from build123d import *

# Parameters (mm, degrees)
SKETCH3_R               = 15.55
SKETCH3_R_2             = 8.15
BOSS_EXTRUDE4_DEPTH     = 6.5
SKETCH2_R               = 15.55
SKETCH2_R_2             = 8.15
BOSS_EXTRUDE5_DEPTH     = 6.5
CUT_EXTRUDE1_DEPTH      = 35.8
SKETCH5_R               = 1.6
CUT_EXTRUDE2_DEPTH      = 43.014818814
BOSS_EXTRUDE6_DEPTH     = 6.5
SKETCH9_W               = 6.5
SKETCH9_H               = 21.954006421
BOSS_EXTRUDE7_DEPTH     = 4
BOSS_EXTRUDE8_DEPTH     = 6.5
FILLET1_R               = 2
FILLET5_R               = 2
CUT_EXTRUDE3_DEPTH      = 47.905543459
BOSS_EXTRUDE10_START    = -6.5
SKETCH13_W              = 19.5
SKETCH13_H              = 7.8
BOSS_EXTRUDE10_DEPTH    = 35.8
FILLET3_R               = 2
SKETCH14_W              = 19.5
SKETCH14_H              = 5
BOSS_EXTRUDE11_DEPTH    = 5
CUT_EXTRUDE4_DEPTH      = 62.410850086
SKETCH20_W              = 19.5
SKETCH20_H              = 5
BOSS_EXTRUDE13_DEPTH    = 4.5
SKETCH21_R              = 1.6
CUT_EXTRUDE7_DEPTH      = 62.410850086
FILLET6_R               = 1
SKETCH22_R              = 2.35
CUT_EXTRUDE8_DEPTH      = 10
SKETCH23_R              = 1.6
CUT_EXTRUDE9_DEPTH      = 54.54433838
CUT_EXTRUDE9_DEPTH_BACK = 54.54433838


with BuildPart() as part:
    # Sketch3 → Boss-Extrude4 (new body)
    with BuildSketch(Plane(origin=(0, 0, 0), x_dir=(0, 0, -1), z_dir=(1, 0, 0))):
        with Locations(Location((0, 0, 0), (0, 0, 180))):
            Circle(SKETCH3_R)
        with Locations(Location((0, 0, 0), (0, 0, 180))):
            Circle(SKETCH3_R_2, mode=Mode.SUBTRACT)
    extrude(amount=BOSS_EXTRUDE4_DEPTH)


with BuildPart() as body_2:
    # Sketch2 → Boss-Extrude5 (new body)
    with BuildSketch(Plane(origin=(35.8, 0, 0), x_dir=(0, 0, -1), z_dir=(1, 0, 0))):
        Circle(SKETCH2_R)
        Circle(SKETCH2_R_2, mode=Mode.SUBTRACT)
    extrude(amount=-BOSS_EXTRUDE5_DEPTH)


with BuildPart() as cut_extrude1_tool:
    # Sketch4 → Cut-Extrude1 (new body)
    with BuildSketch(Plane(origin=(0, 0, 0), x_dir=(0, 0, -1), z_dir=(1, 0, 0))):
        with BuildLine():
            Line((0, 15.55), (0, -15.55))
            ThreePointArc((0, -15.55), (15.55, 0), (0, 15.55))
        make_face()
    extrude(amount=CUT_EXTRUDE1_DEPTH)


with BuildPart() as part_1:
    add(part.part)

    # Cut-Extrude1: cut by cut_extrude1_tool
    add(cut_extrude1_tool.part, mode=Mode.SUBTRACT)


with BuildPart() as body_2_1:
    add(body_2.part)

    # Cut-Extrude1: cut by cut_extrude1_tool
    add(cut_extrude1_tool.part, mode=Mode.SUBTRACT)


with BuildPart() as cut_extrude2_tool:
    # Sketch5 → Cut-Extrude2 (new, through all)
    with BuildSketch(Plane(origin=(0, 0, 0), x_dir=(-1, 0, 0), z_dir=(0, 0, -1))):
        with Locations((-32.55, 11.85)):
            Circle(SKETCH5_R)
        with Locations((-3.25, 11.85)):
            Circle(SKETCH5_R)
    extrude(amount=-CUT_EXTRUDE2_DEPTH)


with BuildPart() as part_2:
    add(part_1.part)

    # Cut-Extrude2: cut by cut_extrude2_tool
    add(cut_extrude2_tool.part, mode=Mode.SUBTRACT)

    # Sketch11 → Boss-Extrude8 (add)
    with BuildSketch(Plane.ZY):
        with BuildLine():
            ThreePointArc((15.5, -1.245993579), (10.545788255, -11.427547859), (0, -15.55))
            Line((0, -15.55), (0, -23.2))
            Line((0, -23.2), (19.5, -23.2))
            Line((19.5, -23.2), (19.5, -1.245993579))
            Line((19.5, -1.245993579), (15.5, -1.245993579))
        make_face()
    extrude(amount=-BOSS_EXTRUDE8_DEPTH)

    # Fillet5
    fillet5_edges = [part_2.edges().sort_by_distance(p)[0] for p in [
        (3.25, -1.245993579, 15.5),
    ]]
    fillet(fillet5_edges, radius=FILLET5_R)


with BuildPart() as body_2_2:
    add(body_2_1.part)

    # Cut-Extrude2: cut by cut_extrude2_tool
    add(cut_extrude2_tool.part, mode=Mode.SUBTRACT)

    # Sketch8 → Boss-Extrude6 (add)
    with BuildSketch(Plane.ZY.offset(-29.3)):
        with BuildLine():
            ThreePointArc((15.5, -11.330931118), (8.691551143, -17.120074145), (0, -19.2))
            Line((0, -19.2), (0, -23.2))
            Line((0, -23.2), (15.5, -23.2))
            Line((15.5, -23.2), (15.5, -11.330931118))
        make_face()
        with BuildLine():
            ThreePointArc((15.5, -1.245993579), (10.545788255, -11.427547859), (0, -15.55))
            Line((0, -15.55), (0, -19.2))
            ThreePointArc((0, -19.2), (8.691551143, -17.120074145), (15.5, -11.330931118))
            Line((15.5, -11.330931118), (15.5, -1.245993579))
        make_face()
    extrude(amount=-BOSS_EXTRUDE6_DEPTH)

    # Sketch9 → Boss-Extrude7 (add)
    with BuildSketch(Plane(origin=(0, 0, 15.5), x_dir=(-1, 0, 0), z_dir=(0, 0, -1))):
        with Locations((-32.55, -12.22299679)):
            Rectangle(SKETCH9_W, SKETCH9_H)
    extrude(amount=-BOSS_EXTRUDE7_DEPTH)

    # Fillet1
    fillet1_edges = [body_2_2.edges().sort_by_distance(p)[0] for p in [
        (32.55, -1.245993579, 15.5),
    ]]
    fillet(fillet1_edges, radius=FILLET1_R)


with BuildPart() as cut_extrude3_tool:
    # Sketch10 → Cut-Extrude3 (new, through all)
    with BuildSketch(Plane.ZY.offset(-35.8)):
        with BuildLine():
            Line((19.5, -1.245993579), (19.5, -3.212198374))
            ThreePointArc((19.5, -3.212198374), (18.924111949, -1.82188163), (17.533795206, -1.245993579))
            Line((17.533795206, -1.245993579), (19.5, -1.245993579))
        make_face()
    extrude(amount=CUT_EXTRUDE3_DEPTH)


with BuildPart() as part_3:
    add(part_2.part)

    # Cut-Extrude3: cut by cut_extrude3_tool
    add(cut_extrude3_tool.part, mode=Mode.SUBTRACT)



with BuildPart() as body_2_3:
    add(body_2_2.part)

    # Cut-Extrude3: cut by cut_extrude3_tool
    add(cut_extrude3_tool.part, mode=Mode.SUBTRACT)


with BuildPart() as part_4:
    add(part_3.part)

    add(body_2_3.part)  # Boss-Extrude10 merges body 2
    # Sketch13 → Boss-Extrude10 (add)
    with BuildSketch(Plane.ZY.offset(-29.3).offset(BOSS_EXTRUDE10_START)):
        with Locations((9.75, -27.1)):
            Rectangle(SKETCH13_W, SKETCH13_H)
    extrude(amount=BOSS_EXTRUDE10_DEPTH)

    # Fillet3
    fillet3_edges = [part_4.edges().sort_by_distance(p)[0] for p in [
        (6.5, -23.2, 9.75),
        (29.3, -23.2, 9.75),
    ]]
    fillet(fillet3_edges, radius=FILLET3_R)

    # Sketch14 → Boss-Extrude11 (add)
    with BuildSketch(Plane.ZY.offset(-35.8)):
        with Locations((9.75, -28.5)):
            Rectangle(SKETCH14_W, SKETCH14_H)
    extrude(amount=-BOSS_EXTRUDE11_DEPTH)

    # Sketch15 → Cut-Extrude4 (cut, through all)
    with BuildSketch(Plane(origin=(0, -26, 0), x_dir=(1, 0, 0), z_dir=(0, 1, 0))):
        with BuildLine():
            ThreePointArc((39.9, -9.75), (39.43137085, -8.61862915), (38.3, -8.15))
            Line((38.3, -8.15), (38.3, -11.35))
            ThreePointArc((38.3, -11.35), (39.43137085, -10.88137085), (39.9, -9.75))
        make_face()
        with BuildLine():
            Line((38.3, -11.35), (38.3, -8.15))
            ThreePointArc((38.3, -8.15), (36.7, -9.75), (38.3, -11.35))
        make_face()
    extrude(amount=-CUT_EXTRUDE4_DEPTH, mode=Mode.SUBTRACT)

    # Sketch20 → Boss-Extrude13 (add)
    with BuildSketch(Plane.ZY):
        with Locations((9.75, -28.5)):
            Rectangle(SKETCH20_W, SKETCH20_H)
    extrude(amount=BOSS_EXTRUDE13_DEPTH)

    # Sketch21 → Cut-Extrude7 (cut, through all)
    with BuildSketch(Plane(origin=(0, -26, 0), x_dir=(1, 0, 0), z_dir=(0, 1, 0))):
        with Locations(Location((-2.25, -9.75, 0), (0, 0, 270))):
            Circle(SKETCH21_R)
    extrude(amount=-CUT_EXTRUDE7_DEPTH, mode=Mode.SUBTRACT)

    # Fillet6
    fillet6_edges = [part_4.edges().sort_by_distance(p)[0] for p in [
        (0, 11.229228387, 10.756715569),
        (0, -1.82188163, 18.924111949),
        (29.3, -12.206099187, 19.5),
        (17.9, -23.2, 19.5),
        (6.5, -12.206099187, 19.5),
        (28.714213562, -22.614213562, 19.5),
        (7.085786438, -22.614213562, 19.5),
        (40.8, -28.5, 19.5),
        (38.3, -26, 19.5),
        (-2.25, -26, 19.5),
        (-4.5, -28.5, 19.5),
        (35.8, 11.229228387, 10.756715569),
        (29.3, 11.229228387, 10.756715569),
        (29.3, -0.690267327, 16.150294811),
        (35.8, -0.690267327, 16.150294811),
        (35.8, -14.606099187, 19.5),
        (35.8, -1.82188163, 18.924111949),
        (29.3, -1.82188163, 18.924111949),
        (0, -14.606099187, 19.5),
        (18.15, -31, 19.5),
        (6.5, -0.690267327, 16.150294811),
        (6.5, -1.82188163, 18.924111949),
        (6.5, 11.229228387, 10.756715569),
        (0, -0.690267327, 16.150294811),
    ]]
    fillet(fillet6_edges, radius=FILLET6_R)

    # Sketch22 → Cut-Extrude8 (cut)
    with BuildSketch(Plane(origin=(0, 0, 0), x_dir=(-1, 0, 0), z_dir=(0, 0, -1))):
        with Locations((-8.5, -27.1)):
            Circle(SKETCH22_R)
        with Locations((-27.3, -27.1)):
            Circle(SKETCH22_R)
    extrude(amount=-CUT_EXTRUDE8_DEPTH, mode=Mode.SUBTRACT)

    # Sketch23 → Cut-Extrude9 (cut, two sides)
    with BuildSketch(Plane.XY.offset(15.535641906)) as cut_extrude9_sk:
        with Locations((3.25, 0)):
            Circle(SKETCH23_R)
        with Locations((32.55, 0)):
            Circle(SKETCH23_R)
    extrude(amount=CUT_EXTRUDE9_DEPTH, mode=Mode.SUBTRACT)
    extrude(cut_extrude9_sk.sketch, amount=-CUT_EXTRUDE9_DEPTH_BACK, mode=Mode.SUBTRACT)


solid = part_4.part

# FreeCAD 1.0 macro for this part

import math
import FreeCAD as App
import Part
import Sketcher

V = App.Vector
Q = App.Units.Quantity


def edges_at(feature, points):
    """Names of the edges that pass closest to the given points."""
    edges = feature.Shape.Edges
    near = lambda p: min(range(len(edges)), key=lambda i: edges[i].distToShape(Part.Vertex(*p))[0])
    return sorted({f"Edge{near(p) + 1}" for p in points})


def add_polygon(sketch, points):
    """Adds a closed chain of lines whose ends are joined by coincident constraints."""
    first, n = sketch.GeometryCount, len(points)
    for a, b in zip(points, points[1:] + points[:1]):
        sketch.addGeometry(Part.LineSegment(App.Vector(*a, 0), App.Vector(*b, 0)), False)
    for i in range(n):
        sketch.addConstraint(Sketcher.Constraint("Coincident", first + i, 2, first + (i + 1) % n, 1))

doc = App.newDocument("Part")
body = doc.addObject("PartDesign::Body", "Body")

sketch1 = body.newObject("Sketcher::SketchObject", "Sketch")
sketch1.AttachmentSupport = (doc.getObject("YZ_Plane"), [""])
sketch1.MapMode = "FlatFace"
sketch1.addGeometry(Part.Circle(V(0, 0, 0), V(0, 0, 1), 15.55), False)
sketch1.addGeometry(Part.Circle(V(0, 0, 0), V(0, 0, 1), 8.15), False)
sketch1.addConstraint(Sketcher.Constraint("Coincident", 0, 3, -1, 1))
sketch1.addConstraint(Sketcher.Constraint("Coincident", 1, 3, -1, 1))
sketch1.addConstraint(Sketcher.Constraint("Diameter", 0, Q("31.1 mm")))
sketch1.addConstraint(Sketcher.Constraint("Diameter", 1, Q("16.3 mm")))
pad1 = body.newObject("PartDesign::Pad", "Pad")
pad1.Profile = sketch1
pad1.Length = 6.5
body2 = doc.addObject("PartDesign::Body", "Body001")

sketch2 = body2.newObject("Sketcher::SketchObject", "Sketch001")
sketch2.AttachmentSupport = (doc.getObject("YZ_Plane001"), [""])
sketch2.MapMode = "FlatFace"
sketch2.AttachmentOffset = App.Placement(V(0, 0, 35.8), App.Rotation())
sketch2.addGeometry(Part.Circle(V(0, 0, 0), V(0, 0, 1), 15.55), False)
sketch2.addGeometry(Part.Circle(V(0, 0, 0), V(0, 0, 1), 8.15), False)
sketch2.addConstraint(Sketcher.Constraint("Coincident", 0, 3, -1, 1))
sketch2.addConstraint(Sketcher.Constraint("Coincident", 1, 3, -1, 1))
sketch2.addConstraint(Sketcher.Constraint("Diameter", 0, Q("31.1 mm")))
sketch2.addConstraint(Sketcher.Constraint("Diameter", 1, Q("16.3 mm")))
pad2 = body2.newObject("PartDesign::Pad", "Pad001")
pad2.Profile = sketch2
pad2.Length = 6.5
pad2.Reversed = True
body3 = doc.addObject("PartDesign::Body", "Body002")

sketch3 = body3.newObject("Sketcher::SketchObject", "Sketch002")
sketch3.AttachmentSupport = (doc.getObject("YZ_Plane002"), [""])
sketch3.MapMode = "FlatFace"
sketch3.addGeometry(Part.LineSegment(V(15.55, 0, 0), V(-15.55, 0, 0)), False)
sketch3.addGeometry(Part.ArcOfCircle(Part.Circle(V(0, 0, 0), V(0, 0, 1), 15.55), math.radians(180), math.radians(360)), False)
sketch3.addConstraint(Sketcher.Constraint("Coincident", 0, 1, 1, 2))
sketch3.addConstraint(Sketcher.Constraint("Coincident", 1, 1, 0, 2))
sketch3.addConstraint(Sketcher.Constraint("Horizontal", 0))
sketch3.addConstraint(Sketcher.Constraint("Coincident", 1, 3, -1, 1))
sketch3.addConstraint(Sketcher.Constraint("PointOnObject", 0, 1, -1))
sketch3.addConstraint(Sketcher.Constraint("Radius", 1, Q("15.55 mm")))
pad3 = body3.newObject("PartDesign::Pad", "Pad002")
pad3.Profile = sketch3
pad3.Length = 35.8
doc.recompute()

body4 = doc.addObject("PartDesign::Body", "Body003")
body4.BaseFeature = body3
boolean = body.newObject("PartDesign::Boolean", "Boolean")
boolean.Type = "Cut"
boolean.addObjects([body4])
doc.recompute()

boolean2 = body2.newObject("PartDesign::Boolean", "Boolean001")
boolean2.Type = "Cut"
boolean2.addObjects([body3])
body5 = doc.addObject("PartDesign::Body", "Body004")
body5.AllowCompound = True

sketch4 = body5.newObject("Sketcher::SketchObject", "Sketch003")
sketch4.AttachmentSupport = (doc.getObject("XY_Plane004"), [""])
sketch4.MapMode = "FlatFace"
sketch4.addGeometry(Part.Circle(V(32.55, 11.85, 0), V(0, 0, 1), 1.6), False)
sketch4.addGeometry(Part.Circle(V(3.25, 11.85, 0), V(0, 0, 1), 1.6), False)
sketch4.addConstraint(Sketcher.Constraint("Equal", 0, 1))
sketch4.addConstraint(Sketcher.Constraint("Horizontal", 0, 3, 1, 3))
sketch4.addConstraint(Sketcher.Constraint("Diameter", 0, Q("3.2 mm")))
sketch4.addConstraint(Sketcher.Constraint("DistanceX", 1, 3, 0, 3, Q("29.3 mm")))
sketch4.addConstraint(Sketcher.Constraint("DistanceX", -1, 1, 0, 3, Q("32.55 mm")))
sketch4.addConstraint(Sketcher.Constraint("DistanceY", -1, 1, 0, 3, Q("11.85 mm")))
pad4 = body5.newObject("PartDesign::Pad", "Pad003")
pad4.Profile = sketch4
pad4.Length = 43.014819
doc.recompute()

body6 = doc.addObject("PartDesign::Body", "Body005")
body6.BaseFeature = body5
boolean3 = body.newObject("PartDesign::Boolean", "Boolean002")
boolean3.Type = "Cut"
boolean3.addObjects([body6])
doc.recompute()

sketch5 = body.newObject("Sketcher::SketchObject", "Sketch004")
sketch5.AttachmentSupport = (doc.getObject("YZ_Plane"), [""])
sketch5.MapMode = "FlatFace"
sketch5.addGeometry(Part.ArcOfCircle(Part.Circle(V(0, 0, 0), V(0, 0, 1), 15.55), math.radians(94.595935), math.radians(180)), False)
sketch5.addGeometry(Part.LineSegment(V(-15.55, 0, 0), V(-23.2, 0, 0)), False)
sketch5.addGeometry(Part.LineSegment(V(-23.2, 0, 0), V(-23.2, 19.5, 0)), False)
sketch5.addGeometry(Part.LineSegment(V(-23.2, 19.5, 0), V(-1.245994, 19.5, 0)), False)
sketch5.addGeometry(Part.LineSegment(V(-1.245994, 19.5, 0), V(-1.245994, 15.5, 0)), False)
sketch5.addConstraint(Sketcher.Constraint("Coincident", 0, 2, 1, 1))
sketch5.addConstraint(Sketcher.Constraint("Coincident", 1, 2, 2, 1))
sketch5.addConstraint(Sketcher.Constraint("Coincident", 2, 2, 3, 1))
sketch5.addConstraint(Sketcher.Constraint("Coincident", 3, 2, 4, 1))
sketch5.addConstraint(Sketcher.Constraint("Coincident", 4, 2, 0, 1))
sketch5.addConstraint(Sketcher.Constraint("Horizontal", 1))
sketch5.addConstraint(Sketcher.Constraint("Vertical", 2))
sketch5.addConstraint(Sketcher.Constraint("Horizontal", 3))
sketch5.addConstraint(Sketcher.Constraint("Vertical", 4))
sketch5.addConstraint(Sketcher.Constraint("Coincident", 0, 3, -1, 1))
sketch5.addConstraint(Sketcher.Constraint("PointOnObject", 0, 2, -1))
sketch5.addConstraint(Sketcher.Constraint("DistanceY", 4, 2, 4, 1, Q("4 mm")))
sketch5.addConstraint(Sketcher.Constraint("Radius", 0, Q("15.55 mm")))
sketch5.addConstraint(Sketcher.Constraint("DistanceY", 2, 1, 2, 2, Q("19.5 mm")))
sketch5.addConstraint(Sketcher.Constraint("DistanceX", 1, 2, 1, 1, Q("7.65 mm")))
pad5 = body.newObject("PartDesign::Pad", "Pad004")
pad5.Profile = sketch5
pad5.Length = 6.5
doc.recompute()

fillet = body.newObject("PartDesign::Fillet", "Fillet")
fillet.Base = (pad5, edges_at(pad5, [(3.25, -1.246, 15.5)]))
fillet.Radius = 2
doc.recompute()

boolean4 = body2.newObject("PartDesign::Boolean", "Boolean003")
boolean4.Type = "Cut"
boolean4.addObjects([body5])

sketch6 = body2.newObject("Sketcher::SketchObject", "Sketch005")
sketch6.AttachmentSupport = (doc.getObject("YZ_Plane001"), [""])
sketch6.MapMode = "FlatFace"
sketch6.AttachmentOffset = App.Placement(V(0, 0, 29.3), App.Rotation())
sketch6.addGeometry(Part.LineSegment(V(-23.2, 0, 0), V(-23.2, 15.5, 0)), False)
sketch6.addGeometry(Part.LineSegment(V(-23.2, 15.5, 0), V(-1.245994, 15.5, 0)), False)
sketch6.addGeometry(Part.ArcOfCircle(Part.Circle(V(0, 0, 0), V(0, 0, 1), 15.55), math.radians(94.595935), math.radians(180)), False)
sketch6.addGeometry(Part.LineSegment(V(-15.55, 0, 0), V(-23.2, 0, 0)), False)
sketch6.addConstraint(Sketcher.Constraint("Coincident", 0, 2, 1, 1))
sketch6.addConstraint(Sketcher.Constraint("Coincident", 1, 2, 2, 1))
sketch6.addConstraint(Sketcher.Constraint("Coincident", 2, 2, 3, 1))
sketch6.addConstraint(Sketcher.Constraint("Coincident", 3, 2, 0, 1))
sketch6.addConstraint(Sketcher.Constraint("Vertical", 0))
sketch6.addConstraint(Sketcher.Constraint("Horizontal", 1))
sketch6.addConstraint(Sketcher.Constraint("Horizontal", 3))
sketch6.addConstraint(Sketcher.Constraint("Coincident", 2, 3, -1, 1))
sketch6.addConstraint(Sketcher.Constraint("PointOnObject", 2, 2, -1))
sketch6.addConstraint(Sketcher.Constraint("Radius", 2, Q("15.55 mm")))
sketch6.addConstraint(Sketcher.Constraint("DistanceY", 0, 1, 0, 2, Q("15.5 mm")))
sketch6.addConstraint(Sketcher.Constraint("DistanceX", 3, 2, 3, 1, Q("7.65 mm")))
pad6 = body2.newObject("PartDesign::Pad", "Pad005")
pad6.Profile = sketch6
pad6.Length = 6.5

sketch7 = body2.newObject("Sketcher::SketchObject", "Sketch006")
sketch7.AttachmentSupport = (doc.getObject("XY_Plane001"), [""])
sketch7.MapMode = "FlatFace"
sketch7.AttachmentOffset = App.Placement(V(0, 0, 15.5), App.Rotation())
add_polygon(sketch7, [(35.8, -1.245994), (35.8, -23.2), (29.3, -23.2), (29.3, -1.245994)])
sketch7.addConstraint(Sketcher.Constraint("Vertical", 0))
sketch7.addConstraint(Sketcher.Constraint("Horizontal", 1))
sketch7.addConstraint(Sketcher.Constraint("Vertical", 2))
sketch7.addConstraint(Sketcher.Constraint("Horizontal", 3))
sketch7.addConstraint(Sketcher.Constraint("DistanceX", 1, 2, 1, 1, Q("6.5 mm")))
sketch7.addConstraint(Sketcher.Constraint("DistanceX", -1, 1, 0, 2, Q("35.8 mm")))
sketch7.addConstraint(Sketcher.Constraint("DistanceY", 0, 2, -1, 1, Q("23.2 mm")))
sketch7.addConstraint(Sketcher.Constraint("DistanceY", 0, 2, 0, 1, Q("21.954006 mm")))
pad7 = body2.newObject("PartDesign::Pad", "Pad006")
pad7.Profile = sketch7
pad7.Length = 4
doc.recompute()

fillet2 = body2.newObject("PartDesign::Fillet", "Fillet001")
fillet2.Base = (pad7, edges_at(pad7, [(32.55, -1.246, 15.5)]))
fillet2.Radius = 2
body7 = doc.addObject("PartDesign::Body", "Body006")

sketch8 = body7.newObject("Sketcher::SketchObject", "Sketch007")
sketch8.AttachmentSupport = (doc.getObject("YZ_Plane006"), [""])
sketch8.MapMode = "FlatFace"
sketch8.AttachmentOffset = App.Placement(V(0, 0, 35.8), App.Rotation())
sketch8.addGeometry(Part.LineSegment(V(-3.212198, 19.5, 0), V(-1.245994, 19.5, 0)), False)
sketch8.addGeometry(Part.LineSegment(V(-1.245994, 19.5, 0), V(-1.245994, 17.533795, 0)), False)
sketch8.addGeometry(Part.ArcOfCircle(Part.Circle(V(-3.212198, 17.533795, 0), V(0, 0, 1), 1.966205), math.radians(0), math.radians(90)), False)
sketch8.addConstraint(Sketcher.Constraint("Coincident", 0, 2, 1, 1))
sketch8.addConstraint(Sketcher.Constraint("Tangent", 1, 2, 2, 1))
sketch8.addConstraint(Sketcher.Constraint("Tangent", 2, 2, 0, 1))
sketch8.addConstraint(Sketcher.Constraint("Horizontal", 0))
sketch8.addConstraint(Sketcher.Constraint("Vertical", 1))
sketch8.addConstraint(Sketcher.Constraint("DistanceY", -1, 1, 0, 2, Q("19.5 mm")))
sketch8.addConstraint(Sketcher.Constraint("Radius", 2, Q("1.966205 mm")))
sketch8.addConstraint(Sketcher.Constraint("DistanceX", 2, 3, -1, 1, Q("3.212198 mm")))
pad8 = body7.newObject("PartDesign::Pad", "Pad007")
pad8.Profile = sketch8
pad8.Length = 47.905543
pad8.Reversed = True
doc.recompute()

body8 = doc.addObject("PartDesign::Body", "Body007")
body8.BaseFeature = body7
boolean5 = body.newObject("PartDesign::Boolean", "Boolean004")
boolean5.Type = "Cut"
boolean5.addObjects([body8])
doc.recompute()

boolean6 = body2.newObject("PartDesign::Boolean", "Boolean005")
boolean6.Type = "Cut"
boolean6.addObjects([body7])
body.AllowCompound = True
doc.recompute()

boolean7 = body.newObject("PartDesign::Boolean", "Boolean006")
boolean7.Type = "Fuse"
boolean7.addObjects([body2])

sketch9 = body.newObject("Sketcher::SketchObject", "Sketch008")
sketch9.AttachmentSupport = (doc.getObject("YZ_Plane"), [""])
sketch9.MapMode = "FlatFace"
sketch9.AttachmentOffset = App.Placement(V(0, 0, 35.8), App.Rotation())
add_polygon(sketch9, [(-23.2, 0), (-31, 0), (-31, 19.5), (-23.2, 19.5)])
sketch9.addConstraint(Sketcher.Constraint("Horizontal", 0))
sketch9.addConstraint(Sketcher.Constraint("Vertical", 1))
sketch9.addConstraint(Sketcher.Constraint("Horizontal", 2))
sketch9.addConstraint(Sketcher.Constraint("Vertical", 3))
sketch9.addConstraint(Sketcher.Constraint("PointOnObject", 0, 2, -1))
sketch9.addConstraint(Sketcher.Constraint("DistanceX", 0, 2, 0, 1, Q("7.8 mm")))
sketch9.addConstraint(Sketcher.Constraint("DistanceY", 1, 1, 1, 2, Q("19.5 mm")))
sketch9.addConstraint(Sketcher.Constraint("DistanceX", 0, 2, -1, 1, Q("31 mm")))
pad9 = body.newObject("PartDesign::Pad", "Pad008")
pad9.Profile = sketch9
pad9.Length = 35.8
pad9.Reversed = True
doc.recompute()

fillet3 = body.newObject("PartDesign::Fillet", "Fillet002")
fillet3.Base = (pad9, edges_at(pad9, [(6.5, -23.2, 9.75), (29.3, -23.2, 7.75)]))
fillet3.Radius = 2

sketch10 = body.newObject("Sketcher::SketchObject", "Sketch009")
sketch10.AttachmentSupport = (doc.getObject("YZ_Plane"), [""])
sketch10.MapMode = "FlatFace"
sketch10.AttachmentOffset = App.Placement(V(0, 0, 35.8), App.Rotation())
add_polygon(sketch10, [(-26, 0), (-31, 0), (-31, 19.5), (-26, 19.5)])
sketch10.addConstraint(Sketcher.Constraint("Horizontal", 0))
sketch10.addConstraint(Sketcher.Constraint("Vertical", 1))
sketch10.addConstraint(Sketcher.Constraint("Horizontal", 2))
sketch10.addConstraint(Sketcher.Constraint("Vertical", 3))
sketch10.addConstraint(Sketcher.Constraint("PointOnObject", 0, 2, -1))
sketch10.addConstraint(Sketcher.Constraint("DistanceX", 0, 2, 0, 1, Q("5 mm")))
sketch10.addConstraint(Sketcher.Constraint("DistanceY", 1, 1, 1, 2, Q("19.5 mm")))
sketch10.addConstraint(Sketcher.Constraint("DistanceX", 0, 2, -1, 1, Q("31 mm")))
pad10 = body.newObject("PartDesign::Pad", "Pad009")
pad10.Profile = sketch10
pad10.Length = 5

sketch11 = body.newObject("Sketcher::SketchObject", "Sketch010")
sketch11.AttachmentSupport = (doc.getObject("XZ_Plane"), [""])
sketch11.MapMode = "FlatFace"
sketch11.AttachmentOffset = App.Placement(V(0, 0, 26), App.Rotation())
sketch11.addGeometry(Part.ArcOfCircle(Part.Circle(V(38.3, 9.75, 0), V(0, 0, 1), 1.6), math.radians(-90), math.radians(0)), False)
sketch11.addGeometry(Part.ArcOfCircle(Part.Circle(V(38.3, 9.75, 0), V(0, 0, 1), 1.6), math.radians(90), math.radians(270)), False)
sketch11.addGeometry(Part.ArcOfCircle(Part.Circle(V(38.3, 9.75, 0), V(0, 0, 1), 1.6), math.radians(0), math.radians(90)), False)
sketch11.addConstraint(Sketcher.Constraint("Tangent", 0, 1, 1, 2))
sketch11.addConstraint(Sketcher.Constraint("Tangent", 1, 1, 2, 2))
sketch11.addConstraint(Sketcher.Constraint("Tangent", 2, 1, 0, 2))
sketch11.addConstraint(Sketcher.Constraint("Horizontal", 1, 3, 2, 1))
sketch11.addConstraint(Sketcher.Constraint("Vertical", 2, 3, 0, 1))
sketch11.addConstraint(Sketcher.Constraint("Vertical", 0, 1, 1, 1))
sketch11.addConstraint(Sketcher.Constraint("Radius", 0, Q("1.6 mm")))
sketch11.addConstraint(Sketcher.Constraint("DistanceX", -1, 1, 0, 3, Q("38.3 mm")))
sketch11.addConstraint(Sketcher.Constraint("DistanceY", -1, 1, 0, 3, Q("9.75 mm")))
pocket1 = body.newObject("PartDesign::Pocket", "Pocket")
pocket1.Profile = sketch11
pocket1.Type = "ThroughAll"
pocket1.Reversed = True

sketch12 = body.newObject("Sketcher::SketchObject", "Sketch011")
sketch12.AttachmentSupport = (doc.getObject("YZ_Plane"), [""])
sketch12.MapMode = "FlatFace"
add_polygon(sketch12, [(-26, 0), (-31, 0), (-31, 19.5), (-26, 19.5)])
sketch12.addConstraint(Sketcher.Constraint("Horizontal", 0))
sketch12.addConstraint(Sketcher.Constraint("Vertical", 1))
sketch12.addConstraint(Sketcher.Constraint("Horizontal", 2))
sketch12.addConstraint(Sketcher.Constraint("Vertical", 3))
sketch12.addConstraint(Sketcher.Constraint("PointOnObject", 0, 2, -1))
sketch12.addConstraint(Sketcher.Constraint("DistanceX", 0, 2, 0, 1, Q("5 mm")))
sketch12.addConstraint(Sketcher.Constraint("DistanceY", 1, 1, 1, 2, Q("19.5 mm")))
sketch12.addConstraint(Sketcher.Constraint("DistanceX", 0, 2, -1, 1, Q("31 mm")))
pad11 = body.newObject("PartDesign::Pad", "Pad010")
pad11.Profile = sketch12
pad11.Length = 4.5
pad11.Reversed = True

sketch13 = body.newObject("Sketcher::SketchObject", "Sketch012")
sketch13.AttachmentSupport = (doc.getObject("XZ_Plane"), [""])
sketch13.MapMode = "FlatFace"
sketch13.AttachmentOffset = App.Placement(V(0, 0, 26), App.Rotation())
sketch13.addGeometry(Part.Circle(V(-2.25, 9.75, 0), V(0, 0, 1), 1.6), False)
sketch13.addConstraint(Sketcher.Constraint("Diameter", 0, Q("3.2 mm")))
sketch13.addConstraint(Sketcher.Constraint("DistanceX", 0, 3, -1, 1, Q("2.25 mm")))
sketch13.addConstraint(Sketcher.Constraint("DistanceY", -1, 1, 0, 3, Q("9.75 mm")))
pocket2 = body.newObject("PartDesign::Pocket", "Pocket001")
pocket2.Profile = sketch13
pocket2.Type = "ThroughAll"
pocket2.Reversed = True
doc.recompute()

fillet4 = body.newObject("PartDesign::Fillet", "Fillet003")
fillet4.Base = (pocket2, edges_at(pocket2, [
    (0, 11.229, 10.757),
    (0, -1.822, 18.924),
    (29.3, -12.206, 19.5),
    (17.9, -23.2, 19.5),
    (6.5, -12.206, 19.5),
    (28.714, -22.614, 19.5),
    (7.086, -22.614, 19.5),
    (40.8, -28.5, 19.5),
    (38.3, -26, 19.5),
    (-2.25, -26, 19.5),
    (-4.5, -28.5, 19.5),
    (35.8, 11.229, 10.757),
    (29.3, 11.229, 10.757),
    (29.3, -0.69, 16.15),
    (35.8, -0.69, 16.15),
    (35.8, -14.606, 19.5),
    (35.8, -1.822, 18.924),
    (29.3, -1.822, 18.924),
    (0, -14.606, 19.5),
    (18.15, -31, 19.5),
    (6.5, -0.69, 16.15),
    (6.5, -1.822, 18.924),
    (6.5, 11.229, 10.757),
    (0, -0.69, 16.15),
]))
fillet4.Radius = 1

sketch14 = body.newObject("Sketcher::SketchObject", "Sketch013")
sketch14.AttachmentSupport = (doc.getObject("XY_Plane"), [""])
sketch14.MapMode = "FlatFace"
sketch14.addGeometry(Part.Circle(V(8.5, -27.1, 0), V(0, 0, 1), 2.35), False)
sketch14.addGeometry(Part.Circle(V(27.3, -27.1, 0), V(0, 0, 1), 2.35), False)
sketch14.addConstraint(Sketcher.Constraint("Equal", 0, 1))
sketch14.addConstraint(Sketcher.Constraint("Horizontal", 0, 3, 1, 3))
sketch14.addConstraint(Sketcher.Constraint("Diameter", 0, Q("4.7 mm")))
sketch14.addConstraint(Sketcher.Constraint("DistanceX", -1, 1, 0, 3, Q("8.5 mm")))
sketch14.addConstraint(Sketcher.Constraint("DistanceY", 0, 3, -1, 1, Q("27.1 mm")))
sketch14.addConstraint(Sketcher.Constraint("DistanceX", -1, 1, 1, 3, Q("27.3 mm")))
pocket3 = body.newObject("PartDesign::Pocket", "Pocket002")
pocket3.Profile = sketch14
pocket3.Length = 10
pocket3.Reversed = True

sketch15 = body.newObject("Sketcher::SketchObject", "Sketch014")
sketch15.AttachmentSupport = (doc.getObject("XY_Plane"), [""])
sketch15.MapMode = "FlatFace"
sketch15.AttachmentOffset = App.Placement(V(0, 0, 15.535642), App.Rotation())
sketch15.addGeometry(Part.Circle(V(3.25, 0, 0), V(0, 0, 1), 1.6), False)
sketch15.addGeometry(Part.Circle(V(32.55, 0, 0), V(0, 0, 1), 1.6), False)
sketch15.addConstraint(Sketcher.Constraint("Equal", 0, 1))
sketch15.addConstraint(Sketcher.Constraint("PointOnObject", 0, 3, -1))
sketch15.addConstraint(Sketcher.Constraint("PointOnObject", 1, 3, -1))
sketch15.addConstraint(Sketcher.Constraint("Diameter", 0, Q("3.2 mm")))
sketch15.addConstraint(Sketcher.Constraint("DistanceX", 0, 3, 1, 3, Q("29.3 mm")))
sketch15.addConstraint(Sketcher.Constraint("DistanceX", -1, 1, 0, 3, Q("3.25 mm")))
pocket4 = body.newObject("PartDesign::Pocket", "Pocket003")
pocket4.Profile = sketch15
pocket4.Type = "ThroughAll"
pocket4.Midplane = True

doc.recompute()
